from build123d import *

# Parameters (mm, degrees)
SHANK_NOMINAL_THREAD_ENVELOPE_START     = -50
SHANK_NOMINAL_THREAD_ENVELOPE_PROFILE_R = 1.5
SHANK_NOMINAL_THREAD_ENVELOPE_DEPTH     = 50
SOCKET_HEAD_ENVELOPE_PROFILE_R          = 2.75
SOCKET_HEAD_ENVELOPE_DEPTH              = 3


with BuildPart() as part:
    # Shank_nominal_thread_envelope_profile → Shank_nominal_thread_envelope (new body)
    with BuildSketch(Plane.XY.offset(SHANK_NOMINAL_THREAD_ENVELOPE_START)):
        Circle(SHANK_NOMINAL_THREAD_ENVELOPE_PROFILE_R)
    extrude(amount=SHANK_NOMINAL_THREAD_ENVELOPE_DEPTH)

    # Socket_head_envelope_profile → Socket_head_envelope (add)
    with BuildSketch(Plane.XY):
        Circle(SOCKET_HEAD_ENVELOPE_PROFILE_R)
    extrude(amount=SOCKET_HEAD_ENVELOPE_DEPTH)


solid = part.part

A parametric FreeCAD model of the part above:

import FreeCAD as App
import Part
import Sketcher

doc = App.newDocument("Part")
body = doc.addObject("PartDesign::Body", "Body")

sketch1 = doc.addObject("Sketcher::SketchObject", "Sketch")
body.addObject(sketch1)
sketch1.AttachmentSupport = (doc.XY_Plane, [""])
sketch1.MapMode = "FlatFace"
sketch1.AttachmentOffset = App.Placement(App.Vector(0, 0, -50), App.Rotation())
sketch1.addGeometry(Part.Circle(App.Vector(0, 0, 0), App.Vector(0, 0, 1), 1.5), False)
sketch1.addConstraint(Sketcher.Constraint("Coincident", 0, 3, -1, 1))
sketch1.addConstraint(Sketcher.Constraint("Diameter", 0, 3.0))
pad1 = doc.addObject("PartDesign::Pad", "Pad")
body.addObject(pad1)
pad1.Profile = sketch1
pad1.Length = 50

sketch2 = doc.addObject("Sketcher::SketchObject", "Sketch001")
body.addObject(sketch2)
sketch2.AttachmentSupport = (doc.XY_Plane, [""])
sketch2.MapMode = "FlatFace"
sketch2.addGeometry(Part.Circle(App.Vector(0, 0, 0), App.Vector(0, 0, 1), 2.75), False)
sketch2.addConstraint(Sketcher.Constraint("Coincident", 0, 3, -1, 1))
sketch2.addConstraint(Sketcher.Constraint("Diameter", 0, 5.5))
pad2 = doc.addObject("PartDesign::Pad", "Pad001")
body.addObject(pad2)
pad2.Profile = sketch2
pad2.Length = 3

doc.recompute()
